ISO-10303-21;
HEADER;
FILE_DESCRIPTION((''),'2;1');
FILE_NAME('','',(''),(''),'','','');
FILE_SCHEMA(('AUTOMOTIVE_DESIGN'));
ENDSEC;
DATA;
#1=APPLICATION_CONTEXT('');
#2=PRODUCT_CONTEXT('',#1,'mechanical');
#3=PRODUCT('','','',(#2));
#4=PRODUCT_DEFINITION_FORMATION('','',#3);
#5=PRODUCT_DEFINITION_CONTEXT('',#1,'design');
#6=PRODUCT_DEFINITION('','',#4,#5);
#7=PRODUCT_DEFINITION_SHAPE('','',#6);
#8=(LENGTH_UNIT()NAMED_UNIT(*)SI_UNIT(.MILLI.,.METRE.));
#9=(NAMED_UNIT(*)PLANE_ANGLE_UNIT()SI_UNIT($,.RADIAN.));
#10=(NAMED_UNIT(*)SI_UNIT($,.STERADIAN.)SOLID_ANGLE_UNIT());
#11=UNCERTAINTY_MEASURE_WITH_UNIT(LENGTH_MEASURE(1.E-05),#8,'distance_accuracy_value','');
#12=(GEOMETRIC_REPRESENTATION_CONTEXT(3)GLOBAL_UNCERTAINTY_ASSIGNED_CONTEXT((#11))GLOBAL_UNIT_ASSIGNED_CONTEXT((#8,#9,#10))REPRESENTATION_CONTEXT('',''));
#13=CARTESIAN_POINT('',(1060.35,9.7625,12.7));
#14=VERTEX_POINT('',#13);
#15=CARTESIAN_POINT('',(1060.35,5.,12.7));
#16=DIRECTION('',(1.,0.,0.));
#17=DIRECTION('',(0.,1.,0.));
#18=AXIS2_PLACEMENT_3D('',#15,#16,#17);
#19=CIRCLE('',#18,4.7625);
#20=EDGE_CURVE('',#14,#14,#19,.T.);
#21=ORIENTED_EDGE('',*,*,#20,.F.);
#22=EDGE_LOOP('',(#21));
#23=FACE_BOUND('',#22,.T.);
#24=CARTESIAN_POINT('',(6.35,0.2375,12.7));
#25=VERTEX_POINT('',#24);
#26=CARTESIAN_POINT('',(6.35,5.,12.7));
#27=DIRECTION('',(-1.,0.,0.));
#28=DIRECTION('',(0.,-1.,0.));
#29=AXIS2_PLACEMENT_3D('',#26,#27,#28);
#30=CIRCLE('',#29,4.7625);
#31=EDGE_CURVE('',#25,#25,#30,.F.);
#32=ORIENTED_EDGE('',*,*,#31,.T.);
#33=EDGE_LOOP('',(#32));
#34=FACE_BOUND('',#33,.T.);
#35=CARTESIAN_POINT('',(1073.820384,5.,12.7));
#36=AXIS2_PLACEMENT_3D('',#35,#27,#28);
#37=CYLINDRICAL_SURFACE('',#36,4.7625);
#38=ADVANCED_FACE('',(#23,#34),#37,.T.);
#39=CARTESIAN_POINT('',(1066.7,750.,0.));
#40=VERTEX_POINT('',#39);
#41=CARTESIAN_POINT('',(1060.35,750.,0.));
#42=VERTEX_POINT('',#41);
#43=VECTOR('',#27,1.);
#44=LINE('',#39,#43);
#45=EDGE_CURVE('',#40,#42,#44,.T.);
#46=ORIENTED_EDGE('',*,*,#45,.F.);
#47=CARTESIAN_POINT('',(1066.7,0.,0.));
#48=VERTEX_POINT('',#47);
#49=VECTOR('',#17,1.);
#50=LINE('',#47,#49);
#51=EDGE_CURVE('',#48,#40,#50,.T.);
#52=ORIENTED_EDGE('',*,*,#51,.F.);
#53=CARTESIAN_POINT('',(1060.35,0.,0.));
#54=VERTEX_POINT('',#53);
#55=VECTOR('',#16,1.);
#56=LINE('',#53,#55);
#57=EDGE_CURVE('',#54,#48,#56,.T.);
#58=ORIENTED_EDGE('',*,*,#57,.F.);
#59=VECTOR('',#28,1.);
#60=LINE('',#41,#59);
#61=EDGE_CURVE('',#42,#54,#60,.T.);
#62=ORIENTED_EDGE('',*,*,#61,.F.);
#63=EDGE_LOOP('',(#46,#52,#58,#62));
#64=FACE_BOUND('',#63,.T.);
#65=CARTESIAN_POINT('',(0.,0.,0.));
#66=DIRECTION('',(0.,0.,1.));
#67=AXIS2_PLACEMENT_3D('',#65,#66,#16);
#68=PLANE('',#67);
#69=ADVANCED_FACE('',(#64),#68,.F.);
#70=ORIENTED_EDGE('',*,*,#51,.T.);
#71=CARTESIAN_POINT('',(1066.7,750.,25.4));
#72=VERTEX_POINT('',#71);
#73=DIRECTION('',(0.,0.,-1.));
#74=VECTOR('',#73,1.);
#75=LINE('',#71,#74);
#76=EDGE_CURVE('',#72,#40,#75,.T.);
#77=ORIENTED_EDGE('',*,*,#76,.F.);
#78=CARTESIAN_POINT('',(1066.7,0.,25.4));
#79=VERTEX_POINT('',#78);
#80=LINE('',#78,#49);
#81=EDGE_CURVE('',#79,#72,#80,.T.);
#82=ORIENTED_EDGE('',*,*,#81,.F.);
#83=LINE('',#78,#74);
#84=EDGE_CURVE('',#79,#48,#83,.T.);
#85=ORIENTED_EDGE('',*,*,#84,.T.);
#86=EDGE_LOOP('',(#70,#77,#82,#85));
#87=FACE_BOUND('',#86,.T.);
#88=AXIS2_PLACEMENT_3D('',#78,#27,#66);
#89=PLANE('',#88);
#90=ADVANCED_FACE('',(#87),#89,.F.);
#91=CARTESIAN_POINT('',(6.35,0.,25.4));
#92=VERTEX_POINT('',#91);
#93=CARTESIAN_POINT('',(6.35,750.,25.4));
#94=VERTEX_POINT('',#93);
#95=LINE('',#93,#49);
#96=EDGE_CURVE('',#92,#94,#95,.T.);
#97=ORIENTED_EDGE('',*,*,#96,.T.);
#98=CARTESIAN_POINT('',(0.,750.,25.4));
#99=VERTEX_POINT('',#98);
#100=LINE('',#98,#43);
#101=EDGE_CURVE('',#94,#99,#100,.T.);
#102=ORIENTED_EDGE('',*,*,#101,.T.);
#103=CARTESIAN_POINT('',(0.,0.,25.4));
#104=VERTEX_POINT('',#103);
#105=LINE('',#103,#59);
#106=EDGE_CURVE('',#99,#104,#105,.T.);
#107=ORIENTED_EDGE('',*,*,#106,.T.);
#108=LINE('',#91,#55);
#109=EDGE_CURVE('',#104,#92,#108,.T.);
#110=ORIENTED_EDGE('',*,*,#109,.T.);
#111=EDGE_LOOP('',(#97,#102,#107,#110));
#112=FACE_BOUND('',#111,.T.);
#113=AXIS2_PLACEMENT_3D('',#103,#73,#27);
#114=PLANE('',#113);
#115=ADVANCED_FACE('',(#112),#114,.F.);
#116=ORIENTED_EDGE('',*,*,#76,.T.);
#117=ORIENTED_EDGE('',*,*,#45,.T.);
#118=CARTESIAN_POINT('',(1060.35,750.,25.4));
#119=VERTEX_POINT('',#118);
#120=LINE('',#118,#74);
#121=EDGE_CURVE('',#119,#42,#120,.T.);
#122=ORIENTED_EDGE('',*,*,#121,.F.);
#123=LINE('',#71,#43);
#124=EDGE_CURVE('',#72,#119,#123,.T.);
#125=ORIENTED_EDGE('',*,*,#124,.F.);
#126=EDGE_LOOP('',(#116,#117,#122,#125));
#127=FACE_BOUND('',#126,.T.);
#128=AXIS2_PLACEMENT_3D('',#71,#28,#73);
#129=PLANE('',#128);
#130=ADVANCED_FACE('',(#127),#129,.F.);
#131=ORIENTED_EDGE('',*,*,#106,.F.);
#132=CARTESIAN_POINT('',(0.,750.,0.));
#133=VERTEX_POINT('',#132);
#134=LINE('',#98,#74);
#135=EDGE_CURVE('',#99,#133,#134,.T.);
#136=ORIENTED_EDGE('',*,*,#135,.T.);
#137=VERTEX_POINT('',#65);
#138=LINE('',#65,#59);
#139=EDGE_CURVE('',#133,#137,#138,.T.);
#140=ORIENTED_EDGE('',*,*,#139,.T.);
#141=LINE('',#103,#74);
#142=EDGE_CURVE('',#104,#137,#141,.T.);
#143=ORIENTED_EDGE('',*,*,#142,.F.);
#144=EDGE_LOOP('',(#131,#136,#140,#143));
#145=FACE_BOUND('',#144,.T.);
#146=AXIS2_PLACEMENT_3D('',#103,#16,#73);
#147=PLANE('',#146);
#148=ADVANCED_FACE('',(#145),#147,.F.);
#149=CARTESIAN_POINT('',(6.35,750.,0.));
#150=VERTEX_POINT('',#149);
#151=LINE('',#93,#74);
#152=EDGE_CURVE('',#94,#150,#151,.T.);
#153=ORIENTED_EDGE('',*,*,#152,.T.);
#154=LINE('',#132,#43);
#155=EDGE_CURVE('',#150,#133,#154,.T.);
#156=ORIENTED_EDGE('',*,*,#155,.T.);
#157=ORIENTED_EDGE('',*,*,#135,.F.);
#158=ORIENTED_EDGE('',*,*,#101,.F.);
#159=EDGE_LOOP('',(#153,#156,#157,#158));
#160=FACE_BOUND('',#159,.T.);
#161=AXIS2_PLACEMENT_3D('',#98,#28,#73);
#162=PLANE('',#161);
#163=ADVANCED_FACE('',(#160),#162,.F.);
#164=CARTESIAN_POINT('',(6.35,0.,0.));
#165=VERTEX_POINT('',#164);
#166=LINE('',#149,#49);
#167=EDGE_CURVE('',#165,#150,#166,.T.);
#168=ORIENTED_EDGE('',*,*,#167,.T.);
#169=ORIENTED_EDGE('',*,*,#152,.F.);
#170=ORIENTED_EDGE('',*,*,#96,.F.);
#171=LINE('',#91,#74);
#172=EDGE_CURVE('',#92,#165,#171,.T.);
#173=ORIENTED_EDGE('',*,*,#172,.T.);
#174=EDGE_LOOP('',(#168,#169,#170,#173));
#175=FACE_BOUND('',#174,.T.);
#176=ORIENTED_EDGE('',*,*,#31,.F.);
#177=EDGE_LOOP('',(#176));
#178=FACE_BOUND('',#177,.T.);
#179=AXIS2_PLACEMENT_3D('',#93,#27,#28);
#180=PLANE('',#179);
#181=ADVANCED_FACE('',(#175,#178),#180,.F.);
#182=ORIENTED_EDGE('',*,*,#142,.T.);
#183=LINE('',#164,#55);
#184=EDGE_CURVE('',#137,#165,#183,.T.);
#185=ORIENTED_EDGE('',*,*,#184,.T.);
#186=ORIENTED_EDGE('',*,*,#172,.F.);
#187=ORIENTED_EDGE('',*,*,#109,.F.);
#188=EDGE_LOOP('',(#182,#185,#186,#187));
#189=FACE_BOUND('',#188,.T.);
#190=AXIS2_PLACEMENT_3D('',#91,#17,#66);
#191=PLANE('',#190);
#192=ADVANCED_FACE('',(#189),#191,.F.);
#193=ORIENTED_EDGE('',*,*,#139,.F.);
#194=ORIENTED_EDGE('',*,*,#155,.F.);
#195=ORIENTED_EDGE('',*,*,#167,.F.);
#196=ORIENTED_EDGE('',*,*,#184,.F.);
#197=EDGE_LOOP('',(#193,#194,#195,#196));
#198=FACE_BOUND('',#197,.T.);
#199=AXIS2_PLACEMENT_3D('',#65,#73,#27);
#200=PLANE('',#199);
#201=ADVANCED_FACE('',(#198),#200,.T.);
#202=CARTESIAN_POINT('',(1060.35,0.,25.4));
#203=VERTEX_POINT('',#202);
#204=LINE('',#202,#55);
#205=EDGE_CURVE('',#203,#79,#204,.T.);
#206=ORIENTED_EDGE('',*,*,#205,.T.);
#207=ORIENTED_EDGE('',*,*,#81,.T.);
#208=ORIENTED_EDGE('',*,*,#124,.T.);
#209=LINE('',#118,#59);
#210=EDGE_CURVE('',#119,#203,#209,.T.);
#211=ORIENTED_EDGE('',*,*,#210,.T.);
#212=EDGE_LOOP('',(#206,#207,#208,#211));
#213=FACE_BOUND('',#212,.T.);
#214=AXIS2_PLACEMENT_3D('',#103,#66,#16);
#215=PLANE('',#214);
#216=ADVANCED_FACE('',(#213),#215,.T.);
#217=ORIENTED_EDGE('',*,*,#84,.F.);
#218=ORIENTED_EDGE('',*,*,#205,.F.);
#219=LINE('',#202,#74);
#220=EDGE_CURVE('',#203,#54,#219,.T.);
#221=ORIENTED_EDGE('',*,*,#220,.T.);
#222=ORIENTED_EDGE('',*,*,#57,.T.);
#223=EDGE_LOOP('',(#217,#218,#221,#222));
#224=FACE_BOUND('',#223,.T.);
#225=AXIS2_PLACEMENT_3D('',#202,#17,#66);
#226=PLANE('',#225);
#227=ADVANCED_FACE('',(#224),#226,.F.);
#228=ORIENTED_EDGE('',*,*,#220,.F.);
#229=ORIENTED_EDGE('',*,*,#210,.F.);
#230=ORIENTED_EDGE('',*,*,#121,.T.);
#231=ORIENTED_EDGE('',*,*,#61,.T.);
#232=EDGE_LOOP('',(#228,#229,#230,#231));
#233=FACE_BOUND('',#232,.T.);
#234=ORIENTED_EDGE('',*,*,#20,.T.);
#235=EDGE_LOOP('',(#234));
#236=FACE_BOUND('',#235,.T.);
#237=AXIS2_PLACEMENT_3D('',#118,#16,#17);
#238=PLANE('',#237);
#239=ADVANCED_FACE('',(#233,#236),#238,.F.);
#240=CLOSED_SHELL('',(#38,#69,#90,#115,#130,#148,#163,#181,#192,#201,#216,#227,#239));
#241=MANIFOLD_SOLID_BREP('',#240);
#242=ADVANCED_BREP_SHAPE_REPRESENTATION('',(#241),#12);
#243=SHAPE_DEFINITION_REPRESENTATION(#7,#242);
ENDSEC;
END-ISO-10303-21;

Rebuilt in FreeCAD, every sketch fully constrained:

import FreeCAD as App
import Part
import Sketcher
from FreeCAD import Vector
Q = App.Units.Quantity


def add_polygon(sketch, points):
    """Adds a closed chain of lines whose ends are joined by coincident constraints."""
    first, n = sketch.GeometryCount, len(points)
    for a, b in zip(points, points[1:] + points[:1]):
        sketch.addGeometry(Part.LineSegment(App.Vector(*a, 0), App.Vector(*b, 0)), False)
    for i in range(n):
        sketch.addConstraint(Sketcher.Constraint("Coincident", first + i, 2, first + (i + 1) % n, 1))

doc = App.newDocument("Part")
body = doc.addObject("PartDesign::Body", "Body")

# Sketch on XY plane
sketch1 = doc.addObject("Sketcher::SketchObject", "Sketch")
body.addObject(sketch1)
sketch1.AttachmentSupport = (doc.XY_Plane, [""])
sketch1.MapMode = "FlatFace"
add_polygon(sketch1, [(0, 750), (0, 0), (6.35, 0), (6.35, 750)])  # lines 0-3
sketch1.addConstraint([
    Sketcher.Constraint("Vertical", 0),
    Sketcher.Constraint("Horizontal", 1),
    Sketcher.Constraint("Vertical", 2),
    Sketcher.Constraint("Horizontal", 3),
    Sketcher.Constraint("Coincident", 0, 2, -1, 1),
    Sketcher.Constraint("DistanceX", 1, 1, 1, 2, Q("0.25 in")),
    Sketcher.Constraint("DistanceY", 0, 2, 0, 1, Q("750 mm")),
])
pad1 = doc.addObject("PartDesign::Pad", "Pad")
body.addObject(pad1)
pad1.Profile = sketch1
pad1.Length = Q("1 in")
body2 = doc.addObject("PartDesign::Body", "Body001")

# Sketch on XY plane
sketch2 = doc.addObject("Sketcher::SketchObject", "Sketch001")
body2.addObject(sketch2)
sketch2.AttachmentSupport = (doc.getObject("XY_Plane001"), [""])
sketch2.MapMode = "FlatFace"
add_polygon(sketch2, [(1060.35, 750), (1060.35, 0), (1066.7, 0), (1066.7, 750)])  # lines 0-3
sketch2.addConstraint([
    Sketcher.Constraint("Vertical", 0),
    Sketcher.Constraint("Horizontal", 1),
    Sketcher.Constraint("Vertical", 2),
    Sketcher.Constraint("Horizontal", 3),
    Sketcher.Constraint("PointOnObject", 0, 2, -1),
    Sketcher.Constraint("DistanceX", 1, 1, 1, 2, Q("0.25 in")),
    Sketcher.Constraint("DistanceY", 0, 2, 0, 1, Q("750 mm")),
    Sketcher.Constraint("DistanceX", -1, 1, 0, 2, Q("1060.35 mm")),
])
pad2 = doc.addObject("PartDesign::Pad", "Pad001")
body2.addObject(pad2)
pad2.Profile = sketch2
pad2.Length = Q("1 in")
body.AllowCompound = True
doc.recompute()

boolean = doc.addObject("PartDesign::Boolean", "Boolean")
body.addObject(boolean)
boolean.Type = "Fuse"
boolean.addObjects([body2])

# Sketch on YZ plane
sketch3 = doc.addObject("Sketcher::SketchObject", "Sketch002")
body.addObject(sketch3)
sketch3.AttachmentSupport = (doc.YZ_Plane, [""])
sketch3.MapMode = "FlatFace"
sketch3.AttachmentOffset = App.Placement(Vector(0, 0, 0.25 * 25.4), App.Rotation())
sketch3.addGeometry(Part.Circle(Vector(5, 12.7, 0), Vector(0, 0, 1), 4.7625), False)
sketch3.addConstraint([
    Sketcher.Constraint("Diameter", 0, Q("0.375 in")),
    Sketcher.Constraint("DistanceY", -1, 1, 0, 3, Q("0.5 in")),
    Sketcher.Constraint("DistanceX", -1, 1, 0, 3, Q("5 mm")),
])
pad3 = doc.addObject("PartDesign::Pad", "Pad002")
body.addObject(pad3)
pad3.Profile = sketch3
pad3.Length = 1054

doc.recompute()
